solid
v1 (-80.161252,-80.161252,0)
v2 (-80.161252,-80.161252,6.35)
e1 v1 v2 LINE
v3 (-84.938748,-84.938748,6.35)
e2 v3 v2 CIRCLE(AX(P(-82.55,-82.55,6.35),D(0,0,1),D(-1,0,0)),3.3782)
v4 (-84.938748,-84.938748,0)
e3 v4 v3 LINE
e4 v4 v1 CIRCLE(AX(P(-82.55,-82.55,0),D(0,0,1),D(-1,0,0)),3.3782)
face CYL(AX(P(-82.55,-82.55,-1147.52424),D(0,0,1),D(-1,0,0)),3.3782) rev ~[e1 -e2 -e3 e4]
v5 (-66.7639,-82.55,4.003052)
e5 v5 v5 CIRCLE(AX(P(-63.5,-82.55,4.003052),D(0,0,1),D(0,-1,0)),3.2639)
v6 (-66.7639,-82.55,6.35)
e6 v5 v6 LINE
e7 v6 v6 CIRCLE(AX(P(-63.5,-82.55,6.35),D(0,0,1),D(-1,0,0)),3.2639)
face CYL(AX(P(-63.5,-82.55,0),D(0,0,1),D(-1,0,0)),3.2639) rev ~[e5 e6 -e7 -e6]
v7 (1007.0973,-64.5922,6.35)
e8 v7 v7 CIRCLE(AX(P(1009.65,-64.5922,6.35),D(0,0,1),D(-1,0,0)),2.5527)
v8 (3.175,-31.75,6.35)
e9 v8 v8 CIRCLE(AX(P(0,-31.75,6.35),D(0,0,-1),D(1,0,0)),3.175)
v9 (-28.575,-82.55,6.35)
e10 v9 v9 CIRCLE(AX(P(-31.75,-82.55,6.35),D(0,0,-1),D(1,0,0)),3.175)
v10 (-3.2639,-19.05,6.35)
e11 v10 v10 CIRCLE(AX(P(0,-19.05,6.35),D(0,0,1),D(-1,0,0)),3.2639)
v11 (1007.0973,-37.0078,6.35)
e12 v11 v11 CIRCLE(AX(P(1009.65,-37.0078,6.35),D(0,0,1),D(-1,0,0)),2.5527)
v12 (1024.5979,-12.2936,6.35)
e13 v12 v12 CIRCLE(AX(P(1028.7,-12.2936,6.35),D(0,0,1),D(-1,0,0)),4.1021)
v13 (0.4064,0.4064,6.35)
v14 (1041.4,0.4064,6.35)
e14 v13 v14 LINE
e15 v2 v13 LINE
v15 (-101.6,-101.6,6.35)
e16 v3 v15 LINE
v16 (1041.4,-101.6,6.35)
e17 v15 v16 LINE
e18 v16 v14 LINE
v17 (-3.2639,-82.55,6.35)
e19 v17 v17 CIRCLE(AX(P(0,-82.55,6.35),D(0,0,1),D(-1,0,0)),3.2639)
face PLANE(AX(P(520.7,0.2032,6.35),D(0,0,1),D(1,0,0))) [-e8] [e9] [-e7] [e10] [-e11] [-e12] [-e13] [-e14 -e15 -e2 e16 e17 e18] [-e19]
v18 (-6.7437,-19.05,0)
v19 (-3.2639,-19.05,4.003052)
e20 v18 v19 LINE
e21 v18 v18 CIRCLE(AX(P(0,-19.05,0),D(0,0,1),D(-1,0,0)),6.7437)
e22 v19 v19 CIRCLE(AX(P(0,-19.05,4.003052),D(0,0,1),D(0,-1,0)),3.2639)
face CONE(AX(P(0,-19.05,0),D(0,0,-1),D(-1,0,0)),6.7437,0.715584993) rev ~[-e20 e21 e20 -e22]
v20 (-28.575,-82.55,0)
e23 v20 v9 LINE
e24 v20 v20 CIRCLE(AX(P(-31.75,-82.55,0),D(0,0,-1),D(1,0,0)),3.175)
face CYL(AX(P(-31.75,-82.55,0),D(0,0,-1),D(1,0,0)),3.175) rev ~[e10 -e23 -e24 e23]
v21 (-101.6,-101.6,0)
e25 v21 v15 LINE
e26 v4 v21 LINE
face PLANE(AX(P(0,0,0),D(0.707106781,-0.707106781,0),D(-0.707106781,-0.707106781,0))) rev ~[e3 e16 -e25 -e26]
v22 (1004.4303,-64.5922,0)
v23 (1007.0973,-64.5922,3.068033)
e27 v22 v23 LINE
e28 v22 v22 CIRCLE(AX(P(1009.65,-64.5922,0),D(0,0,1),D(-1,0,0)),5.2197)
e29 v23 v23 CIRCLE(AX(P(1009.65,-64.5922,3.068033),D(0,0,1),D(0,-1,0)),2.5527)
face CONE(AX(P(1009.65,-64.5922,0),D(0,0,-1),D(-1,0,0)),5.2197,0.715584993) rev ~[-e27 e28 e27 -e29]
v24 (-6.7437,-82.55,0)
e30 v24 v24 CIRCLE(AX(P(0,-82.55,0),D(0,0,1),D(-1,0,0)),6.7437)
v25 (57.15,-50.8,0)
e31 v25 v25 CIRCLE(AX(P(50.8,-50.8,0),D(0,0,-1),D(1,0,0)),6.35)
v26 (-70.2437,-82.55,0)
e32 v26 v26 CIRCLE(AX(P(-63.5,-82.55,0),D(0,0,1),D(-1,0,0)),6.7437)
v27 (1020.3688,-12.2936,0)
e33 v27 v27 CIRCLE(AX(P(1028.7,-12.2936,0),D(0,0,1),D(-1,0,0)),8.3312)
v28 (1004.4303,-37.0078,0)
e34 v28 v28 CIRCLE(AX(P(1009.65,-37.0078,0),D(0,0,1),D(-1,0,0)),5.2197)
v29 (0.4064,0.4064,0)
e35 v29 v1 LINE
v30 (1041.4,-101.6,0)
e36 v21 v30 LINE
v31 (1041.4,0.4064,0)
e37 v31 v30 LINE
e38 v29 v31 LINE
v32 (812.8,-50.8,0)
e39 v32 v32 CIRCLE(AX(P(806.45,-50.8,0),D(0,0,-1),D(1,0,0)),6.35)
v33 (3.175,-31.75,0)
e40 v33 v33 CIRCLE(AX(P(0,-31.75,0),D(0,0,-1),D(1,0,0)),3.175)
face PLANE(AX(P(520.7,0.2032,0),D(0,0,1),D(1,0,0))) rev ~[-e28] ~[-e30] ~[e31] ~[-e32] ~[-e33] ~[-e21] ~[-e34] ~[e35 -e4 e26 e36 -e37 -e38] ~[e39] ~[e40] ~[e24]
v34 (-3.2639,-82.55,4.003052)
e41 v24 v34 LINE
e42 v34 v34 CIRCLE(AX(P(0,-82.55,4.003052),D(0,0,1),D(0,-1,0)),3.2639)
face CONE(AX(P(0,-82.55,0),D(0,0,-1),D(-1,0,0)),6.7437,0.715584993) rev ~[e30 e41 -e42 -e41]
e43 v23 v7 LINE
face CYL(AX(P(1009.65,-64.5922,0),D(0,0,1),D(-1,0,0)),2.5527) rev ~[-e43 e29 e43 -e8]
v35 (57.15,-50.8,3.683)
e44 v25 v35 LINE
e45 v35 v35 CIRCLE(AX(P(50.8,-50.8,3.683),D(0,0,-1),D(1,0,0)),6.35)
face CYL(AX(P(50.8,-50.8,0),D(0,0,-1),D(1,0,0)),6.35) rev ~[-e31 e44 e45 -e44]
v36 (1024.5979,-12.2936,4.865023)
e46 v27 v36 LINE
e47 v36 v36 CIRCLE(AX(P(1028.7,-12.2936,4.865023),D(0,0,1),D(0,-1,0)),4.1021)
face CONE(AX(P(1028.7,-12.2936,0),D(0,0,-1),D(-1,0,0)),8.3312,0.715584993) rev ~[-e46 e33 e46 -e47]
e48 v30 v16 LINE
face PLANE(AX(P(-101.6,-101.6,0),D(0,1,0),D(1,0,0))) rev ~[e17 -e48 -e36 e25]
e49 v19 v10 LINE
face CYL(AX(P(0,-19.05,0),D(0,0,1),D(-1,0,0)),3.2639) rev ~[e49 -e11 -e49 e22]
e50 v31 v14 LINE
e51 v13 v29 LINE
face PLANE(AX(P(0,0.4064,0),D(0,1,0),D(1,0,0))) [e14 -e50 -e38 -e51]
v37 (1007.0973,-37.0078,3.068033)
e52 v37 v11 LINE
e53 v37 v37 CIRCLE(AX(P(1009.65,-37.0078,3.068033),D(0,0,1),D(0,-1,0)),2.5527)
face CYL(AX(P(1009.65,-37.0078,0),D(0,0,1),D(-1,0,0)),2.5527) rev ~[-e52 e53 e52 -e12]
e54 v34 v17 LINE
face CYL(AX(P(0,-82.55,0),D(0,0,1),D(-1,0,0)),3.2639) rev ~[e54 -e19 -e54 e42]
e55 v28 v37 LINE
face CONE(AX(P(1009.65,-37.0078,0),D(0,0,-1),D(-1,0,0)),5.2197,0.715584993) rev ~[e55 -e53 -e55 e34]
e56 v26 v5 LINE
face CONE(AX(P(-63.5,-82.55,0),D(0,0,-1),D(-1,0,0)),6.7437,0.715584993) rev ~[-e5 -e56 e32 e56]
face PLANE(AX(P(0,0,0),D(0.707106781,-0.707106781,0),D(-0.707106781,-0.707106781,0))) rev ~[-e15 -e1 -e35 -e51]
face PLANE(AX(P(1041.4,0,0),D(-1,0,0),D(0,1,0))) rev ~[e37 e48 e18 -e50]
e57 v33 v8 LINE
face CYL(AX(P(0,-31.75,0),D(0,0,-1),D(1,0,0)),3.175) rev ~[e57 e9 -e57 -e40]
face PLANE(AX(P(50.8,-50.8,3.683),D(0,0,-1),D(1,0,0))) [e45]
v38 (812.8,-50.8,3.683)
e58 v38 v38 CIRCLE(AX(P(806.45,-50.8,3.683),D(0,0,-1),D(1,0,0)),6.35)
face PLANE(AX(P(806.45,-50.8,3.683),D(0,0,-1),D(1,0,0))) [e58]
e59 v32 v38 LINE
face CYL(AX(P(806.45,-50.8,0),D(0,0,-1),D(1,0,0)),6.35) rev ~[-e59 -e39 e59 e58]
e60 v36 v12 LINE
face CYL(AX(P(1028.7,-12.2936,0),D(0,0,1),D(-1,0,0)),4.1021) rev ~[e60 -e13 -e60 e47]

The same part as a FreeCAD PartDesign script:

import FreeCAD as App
import Part
import Sketcher
Q = App.Units.Quantity


def add_polygon(sketch, points):
    """Adds a closed chain of lines whose ends are joined by coincident constraints."""
    first, n = sketch.GeometryCount, len(points)
    for a, b in zip(points, points[1:] + points[:1]):
        sketch.addGeometry(Part.LineSegment(App.Vector(*a, 0), App.Vector(*b, 0)), False)
    for i in range(n):
        sketch.addConstraint(Sketcher.Constraint("Coincident", first + i, 2, first + (i + 1) % n, 1))

doc = App.newDocument("Part")
body = doc.addObject("PartDesign::Body", "Body")

sketch1 = body.newObject("Sketcher::SketchObject", "Sketch")
sketch1.AttachmentSupport = (doc.getObject("XY_Plane"), [""])
sketch1.MapMode = "FlatFace"
add_polygon(sketch1, [(1041, 0), (0, 0), (-102, -102), (1041, -102)])
sketch1.addConstraint(Sketcher.Constraint("Horizontal", 0))
sketch1.addConstraint(Sketcher.Constraint("Horizontal", 2))
sketch1.addConstraint(Sketcher.Constraint("Vertical", 3))
sketch1.addConstraint(Sketcher.Constraint("Coincident", 0, 2, -1, 1))
sketch1.addConstraint(Sketcher.Constraint("DistanceX", 0, 2, 0, 1, Q("41 in")))
sketch1.addConstraint(Sketcher.Constraint("DistanceX", 2, 1, 2, 2, Q("45 in")))
sketch1.addConstraint(Sketcher.Constraint("DistanceY", 3, 1, 3, 2, Q("4 in")))
pad1 = body.newObject("PartDesign::Pad", "Pad")
pad1.Profile = sketch1
pad1.Length = Q("0.25 in")

sketch2 = body.newObject("Sketcher::SketchObject", "Sketch001")
sketch2.AttachmentSupport = (doc.getObject("XY_Plane"), [""])
sketch2.MapMode = "FlatFace"
sketch2.addGeometry(Part.Circle(App.Vector(-63.5, -82.5, 0), App.Vector(0, 0, 1), 3.3), False)
sketch2.addGeometry(Part.Circle(App.Vector(0, -82.5, 0), App.Vector(0, 0, 1), 3.3), False)
sketch2.addGeometry(Part.Circle(App.Vector(0, -19.1, 0), App.Vector(0, 0, 1), 3.3), False)
sketch2.addConstraint(Sketcher.Constraint("Equal", 0, 1))
sketch2.addConstraint(Sketcher.Constraint("Equal", 1, 2))
sketch2.addConstraint(Sketcher.Constraint("PointOnObject", 1, 3, -2))
sketch2.addConstraint(Sketcher.Constraint("PointOnObject", 2, 3, -2))
sketch2.addConstraint(Sketcher.Constraint("Horizontal", 0, 3, 1, 3))
sketch2.addConstraint(Sketcher.Constraint("Diameter", 0, Q("0.257 in")))
sketch2.addConstraint(Sketcher.Constraint("DistanceX", 0, 3, -1, 1, Q("2.5 in")))
sketch2.addConstraint(Sketcher.Constraint("DistanceY", 1, 3, 2, 3, Q("2.5 in")))
sketch2.addConstraint(Sketcher.Constraint("DistanceY", 0, 3, -1, 1, Q("3.25 in")))
doc.recompute()
hole = body.newObject("PartDesign::Hole", "Hole")
hole.Profile = sketch2
hole.ThreadType = "None"
hole.Diameter = Q("0.257 in")
hole.DepthType = "ThroughAll"
hole.HoleCutType = "Countersink"
hole.HoleCutDiameter = Q("0.531 in")
hole.HoleCutCountersinkAngle = 82
hole.Reversed = True

sketch3 = body.newObject("Sketcher::SketchObject", "Sketch002")
sketch3.AttachmentSupport = (doc.getObject("XY_Plane"), [""])
sketch3.MapMode = "FlatFace"
sketch3.addGeometry(Part.Circle(App.Vector(51, -51, 0), App.Vector(0, 0, 1), 6), False)
sketch3.addGeometry(Part.Circle(App.Vector(806, -51, 0), App.Vector(0, 0, 1), 6), False)
sketch3.addConstraint(Sketcher.Constraint("Equal", 0, 1))
sketch3.addConstraint(Sketcher.Constraint("Horizontal", 0, 3, 1, 3))
sketch3.addConstraint(Sketcher.Constraint("Diameter", 0, Q("0.5 in")))
sketch3.addConstraint(Sketcher.Constraint("DistanceX", -1, 1, 0, 3, Q("2 in")))
sketch3.addConstraint(Sketcher.Constraint("DistanceY", 0, 3, -1, 1, Q("2 in")))
sketch3.addConstraint(Sketcher.Constraint("DistanceX", -1, 1, 1, 3, Q("31.75 in")))
pocket1 = body.newObject("PartDesign::Pocket", "Pocket")
pocket1.Profile = sketch3
pocket1.Length = Q("0.145 in")
pocket1.Reversed = True

sketch4 = body.newObject("Sketcher::SketchObject", "Sketch003")
sketch4.AttachmentSupport = (doc.getObject("XY_Plane"), [""])
sketch4.MapMode = "FlatFace"
sketch4.addGeometry(Part.Circle(App.Vector(1009.6, -64.6, 0), App.Vector(0, 0, 1), 2.6), False)
sketch4.addGeometry(Part.Circle(App.Vector(1009.6, -37, 0), App.Vector(0, 0, 1), 2.6), False)
sketch4.addConstraint(Sketcher.Constraint("Equal", 0, 1))
sketch4.addConstraint(Sketcher.Constraint("Vertical", 0, 3, 1, 3))
sketch4.addConstraint(Sketcher.Constraint("Diameter", 0, Q("0.201 in")))
sketch4.addConstraint(Sketcher.Constraint("DistanceX", -1, 1, 0, 3, Q("39.75 in")))
sketch4.addConstraint(Sketcher.Constraint("DistanceY", 0, 3, -1, 1, Q("2.543 in")))
sketch4.addConstraint(Sketcher.Constraint("DistanceY", 1, 3, -1, 1, Q("1.457 in")))
doc.recompute()
hole2 = body.newObject("PartDesign::Hole", "Hole001")
hole2.Profile = sketch4
hole2.ThreadType = "None"
hole2.Diameter = Q("0.201 in")
hole2.DepthType = "ThroughAll"
hole2.HoleCutType = "Countersink"
hole2.HoleCutDiameter = Q("0.411 in")
hole2.HoleCutCountersinkAngle = 82
hole2.Reversed = True

sketch5 = body.newObject("Sketcher::SketchObject", "Sketch004")
sketch5.AttachmentSupport = (doc.getObject("XY_Plane"), [""])
sketch5.MapMode = "FlatFace"
sketch5.addGeometry(Part.Circle(App.Vector(-82.5, -82.5, 0), App.Vector(0, 0, 1), 3.4), False)
sketch5.addConstraint(Sketcher.Constraint("Diameter", 0, Q("0.266 in")))
sketch5.addConstraint(Sketcher.Constraint("DistanceX", 0, 3, -1, 1, Q("3.25 in")))
sketch5.addConstraint(Sketcher.Constraint("DistanceY", 0, 3, -1, 1, Q("3.25 in")))
doc.recompute()
hole3 = body.newObject("PartDesign::Hole", "Hole002")
hole3.Profile = sketch5
hole3.ThreadType = "None"
hole3.Diameter = Q("0.266 in")
hole3.DepthType = "ThroughAll"
hole3.Reversed = True

sketch6 = body.newObject("Sketcher::SketchObject", "Sketch005")
sketch6.AttachmentSupport = (doc.getObject("XY_Plane"), [""])
sketch6.MapMode = "FlatFace"
sketch6.addGeometry(Part.Circle(App.Vector(-31.8, -82.5, 0), App.Vector(0, 0, 1), 3.2), False)
sketch6.addGeometry(Part.Circle(App.Vector(0, -31.8, 0), App.Vector(0, 0, 1), 3.2), False)
sketch6.addConstraint(Sketcher.Constraint("Equal", 0, 1))
sketch6.addConstraint(Sketcher.Constraint("PointOnObject", 1, 3, -2))
sketch6.addConstraint(Sketcher.Constraint("Diameter", 0, Q("0.25 in")))
sketch6.addConstraint(Sketcher.Constraint("DistanceY", 0, 3, 1, 3, Q("2 in")))
sketch6.addConstraint(Sketcher.Constraint("DistanceX", 0, 3, -1, 1, Q("1.25 in")))
sketch6.addConstraint(Sketcher.Constraint("DistanceY", 0, 3, -1, 1, Q("3.25 in")))
pocket2 = body.newObject("PartDesign::Pocket", "Pocket001")
pocket2.Profile = sketch6
pocket2.Type = "ThroughAll"
pocket2.Reversed = True

sketch7 = body.newObject("Sketcher::SketchObject", "Sketch006")
sketch7.AttachmentSupport = (doc.getObject("XY_Plane"), [""])
sketch7.MapMode = "FlatFace"
add_polygon(sketch7, [(0, 0.41), (0, 0), (1041.4, 0), (1041.4, 0.41)])
sketch7.addConstraint(Sketcher.Constraint("Vertical", 0))
sketch7.addConstraint(Sketcher.Constraint("Horizontal", 1))
sketch7.addConstraint(Sketcher.Constraint("Vertical", 2))
sketch7.addConstraint(Sketcher.Constraint("Horizontal", 3))
sketch7.addConstraint(Sketcher.Constraint("Coincident", 0, 2, -1, 1))
sketch7.addConstraint(Sketcher.Constraint("DistanceX", 1, 1, 1, 2, Q("41 in")))
sketch7.addConstraint(Sketcher.Constraint("DistanceY", 0, 2, 0, 1, Q("0.016 in")))
pad2 = body.newObject("PartDesign::Pad", "Pad001")
pad2.Profile = sketch7
pad2.Length = Q("0.25 in")

sketch8 = body.newObject("Sketcher::SketchObject", "Sketch007")
sketch8.AttachmentSupport = (doc.getObject("XY_Plane"), [""])
sketch8.MapMode = "FlatFace"
sketch8.AttachmentOffset = App.Placement(App.Vector(0, 0, 0.25 * 25.4), App.Rotation())
add_polygon(sketch8, [(0, 0.41), (0, 0), (0.41, 0.41)])
sketch8.addConstraint(Sketcher.Constraint("Vertical", 0))
sketch8.addConstraint(Sketcher.Constraint("Horizontal", 2))
sketch8.addConstraint(Sketcher.Constraint("Coincident", 0, 2, -1, 1))
sketch8.addConstraint(Sketcher.Constraint("Equal", 2, 0))
sketch8.addConstraint(Sketcher.Constraint("DistanceX", 2, 2, 2, 1, Q("0.016 in")))
pocket3 = body.newObject("PartDesign::Pocket", "Pocket002")
pocket3.Profile = sketch8
pocket3.Length = Q("1 in")

sketch9 = body.newObject("Sketcher::SketchObject", "Sketch008")
sketch9.AttachmentSupport = (doc.getObject("XY_Plane"), [""])
sketch9.MapMode = "FlatFace"
sketch9.addGeometry(Part.Circle(App.Vector(1028.7, -12.3, 0), App.Vector(0, 0, 1), 4.1), False)
sketch9.addConstraint(Sketcher.Constraint("Diameter", 0, Q("0.323 in")))
sketch9.addConstraint(Sketcher.Constraint("DistanceX", -1, 1, 0, 3, Q("40.5 in")))
sketch9.addConstraint(Sketcher.Constraint("DistanceY", 0, 3, -1, 1, Q("0.484 in")))
doc.recompute()
hole4 = body.newObject("PartDesign::Hole", "Hole003")
hole4.Profile = sketch9
hole4.ThreadType = "None"
hole4.Diameter = Q("0.323 in")
hole4.DepthType = "ThroughAll"
hole4.HoleCutType = "Countersink"
hole4.HoleCutDiameter = Q("0.656 in")
hole4.HoleCutCountersinkAngle = 82
hole4.Reversed = True

doc.recompute()
